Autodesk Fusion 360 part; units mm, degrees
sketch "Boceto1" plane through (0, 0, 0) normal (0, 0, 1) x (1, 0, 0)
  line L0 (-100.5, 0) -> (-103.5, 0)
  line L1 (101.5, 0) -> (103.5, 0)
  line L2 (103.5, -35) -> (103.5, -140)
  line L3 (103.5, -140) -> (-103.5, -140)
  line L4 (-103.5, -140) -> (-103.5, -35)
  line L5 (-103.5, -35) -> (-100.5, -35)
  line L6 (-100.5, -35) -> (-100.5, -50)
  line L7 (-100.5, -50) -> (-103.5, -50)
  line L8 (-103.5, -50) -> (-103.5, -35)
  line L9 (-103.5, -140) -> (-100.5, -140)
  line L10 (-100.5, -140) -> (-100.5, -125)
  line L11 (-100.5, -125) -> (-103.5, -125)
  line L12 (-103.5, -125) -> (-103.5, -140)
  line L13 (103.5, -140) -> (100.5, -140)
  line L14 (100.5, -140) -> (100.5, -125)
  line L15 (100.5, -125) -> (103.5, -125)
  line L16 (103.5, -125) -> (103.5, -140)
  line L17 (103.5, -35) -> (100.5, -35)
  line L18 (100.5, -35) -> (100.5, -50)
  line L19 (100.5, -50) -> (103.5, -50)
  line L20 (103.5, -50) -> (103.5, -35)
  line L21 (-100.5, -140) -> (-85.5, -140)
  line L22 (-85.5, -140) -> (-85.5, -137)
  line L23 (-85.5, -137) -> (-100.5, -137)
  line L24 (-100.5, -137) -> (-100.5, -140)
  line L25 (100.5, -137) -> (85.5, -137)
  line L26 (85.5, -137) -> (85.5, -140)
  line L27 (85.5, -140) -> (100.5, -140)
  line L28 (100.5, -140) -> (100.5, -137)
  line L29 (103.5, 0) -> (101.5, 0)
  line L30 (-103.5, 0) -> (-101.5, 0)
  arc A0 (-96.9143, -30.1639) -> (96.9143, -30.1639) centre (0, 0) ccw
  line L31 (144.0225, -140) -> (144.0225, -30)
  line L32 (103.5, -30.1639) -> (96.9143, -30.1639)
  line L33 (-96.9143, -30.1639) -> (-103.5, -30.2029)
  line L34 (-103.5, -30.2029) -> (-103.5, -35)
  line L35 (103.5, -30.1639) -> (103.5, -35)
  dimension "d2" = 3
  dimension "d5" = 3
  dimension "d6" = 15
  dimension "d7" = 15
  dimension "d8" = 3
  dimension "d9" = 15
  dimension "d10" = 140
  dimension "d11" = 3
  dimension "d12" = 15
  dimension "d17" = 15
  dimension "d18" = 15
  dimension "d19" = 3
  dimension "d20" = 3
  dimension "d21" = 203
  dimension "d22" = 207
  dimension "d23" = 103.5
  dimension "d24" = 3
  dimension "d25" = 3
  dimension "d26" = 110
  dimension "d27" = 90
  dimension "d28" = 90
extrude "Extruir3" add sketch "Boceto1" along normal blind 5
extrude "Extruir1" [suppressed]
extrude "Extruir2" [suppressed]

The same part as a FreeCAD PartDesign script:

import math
import FreeCAD as App
import Part
import Sketcher
Q = App.Units.Quantity

doc = App.newDocument("Part")
body = doc.addObject("PartDesign::Body", "Body")

sketch1 = body.newObject("Sketcher::SketchObject", "Sketch")
sketch1.AttachmentSupport = (doc.getObject("XY_Plane"), [""])
sketch1.MapMode = "FlatFace"
sketch1.addGeometry([
    Part.LineSegment(App.Vector(104, -30, 0), App.Vector(97, -30, 0)),
    Part.ArcOfCircle(Part.Circle(App.Vector(0, 0, 0), App.Vector(0, 0, 1), 101), math.radians(-163), math.radians(-17)),
    Part.LineSegment(App.Vector(-97, -30, 0), App.Vector(-104, -30, 0)),
    Part.LineSegment(App.Vector(-104, -30, 0), App.Vector(-104, -140, 0)),
    Part.LineSegment(App.Vector(-104, -140, 0), App.Vector(104, -140, 0)),
    Part.LineSegment(App.Vector(104, -140, 0), App.Vector(104, -30, 0)),
], False)
sketch1.addConstraint([
    Sketcher.Constraint("Coincident", 0, 2, 1, 2),
    Sketcher.Constraint("Coincident", 1, 1, 2, 1),
    Sketcher.Constraint("Coincident", 2, 2, 3, 1),
    Sketcher.Constraint("Coincident", 3, 2, 4, 1),
    Sketcher.Constraint("Coincident", 4, 2, 5, 1),
    Sketcher.Constraint("Coincident", 5, 2, 0, 1),
    Sketcher.Constraint("Horizontal", 0),
    Sketcher.Constraint("Vertical", 3),
    Sketcher.Constraint("Horizontal", 4),
    Sketcher.Constraint("Vertical", 5),
    Sketcher.Constraint("Coincident", 1, 3, -1, 1),
    Sketcher.Constraint("Horizontal", 0, 2, 1, 1),
    Sketcher.Constraint("Radius", 1, 101.5),
    Sketcher.Constraint("DistanceX", 4, 1, 4, 2, 207.0),
    Sketcher.Constraint("DistanceY", 3, 2, -1, 1, 140.0),
    Sketcher.Constraint("DistanceX", 2, 2, -1, 1, 103.5),
    Sketcher.Constraint("Angle", 2, Q("-179.6607 deg")),
    Sketcher.Constraint("DistanceY", 3, 2, 3, 1, 109.797),
])
pad1 = body.newObject("PartDesign::Pad", "Pad")
pad1.Profile = sketch1
pad1.Length = 5

doc.recompute()
